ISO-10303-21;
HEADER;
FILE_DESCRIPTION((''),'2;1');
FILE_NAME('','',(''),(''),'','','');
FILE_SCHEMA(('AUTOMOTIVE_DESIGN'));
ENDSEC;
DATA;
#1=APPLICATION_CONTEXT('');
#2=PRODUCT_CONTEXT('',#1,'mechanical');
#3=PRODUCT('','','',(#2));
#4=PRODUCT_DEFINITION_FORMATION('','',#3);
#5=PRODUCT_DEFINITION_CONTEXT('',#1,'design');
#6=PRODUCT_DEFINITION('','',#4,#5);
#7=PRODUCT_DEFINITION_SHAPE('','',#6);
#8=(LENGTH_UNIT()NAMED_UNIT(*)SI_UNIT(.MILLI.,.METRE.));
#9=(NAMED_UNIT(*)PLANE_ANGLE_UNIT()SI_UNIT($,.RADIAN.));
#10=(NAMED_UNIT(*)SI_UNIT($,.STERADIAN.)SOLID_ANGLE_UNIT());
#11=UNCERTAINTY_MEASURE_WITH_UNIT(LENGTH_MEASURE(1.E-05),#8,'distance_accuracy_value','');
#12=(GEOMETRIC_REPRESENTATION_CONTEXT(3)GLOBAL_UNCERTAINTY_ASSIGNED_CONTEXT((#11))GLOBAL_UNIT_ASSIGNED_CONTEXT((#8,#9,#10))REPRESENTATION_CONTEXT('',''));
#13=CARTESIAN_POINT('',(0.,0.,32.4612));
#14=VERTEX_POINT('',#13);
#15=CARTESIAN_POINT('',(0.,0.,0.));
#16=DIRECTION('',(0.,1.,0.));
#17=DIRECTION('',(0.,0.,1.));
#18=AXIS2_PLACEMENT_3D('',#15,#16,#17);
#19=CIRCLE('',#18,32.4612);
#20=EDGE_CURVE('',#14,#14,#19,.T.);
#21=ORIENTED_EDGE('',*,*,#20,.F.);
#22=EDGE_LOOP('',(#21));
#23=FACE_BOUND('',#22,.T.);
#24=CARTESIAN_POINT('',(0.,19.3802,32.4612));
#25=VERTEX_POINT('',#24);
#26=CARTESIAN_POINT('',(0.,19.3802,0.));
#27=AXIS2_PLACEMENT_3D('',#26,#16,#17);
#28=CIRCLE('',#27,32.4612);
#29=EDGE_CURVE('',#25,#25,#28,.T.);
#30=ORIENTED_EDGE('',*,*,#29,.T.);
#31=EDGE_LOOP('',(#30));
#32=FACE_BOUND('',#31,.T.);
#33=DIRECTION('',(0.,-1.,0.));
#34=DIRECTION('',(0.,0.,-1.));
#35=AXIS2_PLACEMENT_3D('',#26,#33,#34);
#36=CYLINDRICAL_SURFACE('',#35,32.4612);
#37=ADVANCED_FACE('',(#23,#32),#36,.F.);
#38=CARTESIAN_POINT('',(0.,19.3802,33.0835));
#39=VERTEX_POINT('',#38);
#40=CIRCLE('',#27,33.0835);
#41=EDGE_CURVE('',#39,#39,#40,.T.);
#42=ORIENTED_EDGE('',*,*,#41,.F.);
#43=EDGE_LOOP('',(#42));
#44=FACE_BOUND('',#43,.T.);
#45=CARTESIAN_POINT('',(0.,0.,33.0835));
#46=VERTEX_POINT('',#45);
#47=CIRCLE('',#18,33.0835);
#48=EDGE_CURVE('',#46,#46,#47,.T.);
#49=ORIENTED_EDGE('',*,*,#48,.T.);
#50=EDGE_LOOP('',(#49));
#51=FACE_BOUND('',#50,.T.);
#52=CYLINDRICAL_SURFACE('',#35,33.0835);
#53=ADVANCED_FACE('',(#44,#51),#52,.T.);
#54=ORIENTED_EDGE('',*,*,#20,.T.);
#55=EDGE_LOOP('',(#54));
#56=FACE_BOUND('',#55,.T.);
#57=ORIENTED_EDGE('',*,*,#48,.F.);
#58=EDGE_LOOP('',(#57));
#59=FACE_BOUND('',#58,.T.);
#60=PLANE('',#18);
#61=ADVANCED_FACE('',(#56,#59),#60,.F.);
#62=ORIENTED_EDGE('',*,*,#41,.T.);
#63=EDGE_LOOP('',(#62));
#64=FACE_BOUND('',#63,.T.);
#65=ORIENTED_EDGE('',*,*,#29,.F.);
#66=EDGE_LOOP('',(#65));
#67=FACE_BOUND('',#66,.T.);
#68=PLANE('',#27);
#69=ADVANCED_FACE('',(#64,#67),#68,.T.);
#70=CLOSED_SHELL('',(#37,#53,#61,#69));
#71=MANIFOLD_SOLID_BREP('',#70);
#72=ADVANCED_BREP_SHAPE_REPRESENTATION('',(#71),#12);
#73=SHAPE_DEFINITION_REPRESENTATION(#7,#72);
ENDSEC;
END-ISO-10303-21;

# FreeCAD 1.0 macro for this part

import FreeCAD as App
import Part
import Sketcher
from FreeCAD import Vector
Q = App.Units.Quantity

doc = App.newDocument("Part")
body = doc.addObject("PartDesign::Body", "Body")

sketch1 = body.newObject("Sketcher::SketchObject", "Sketch")
sketch1.AttachmentSupport = (doc.getObject("XZ_Plane"), [""])
sketch1.MapMode = "FlatFace"
sketch1.addGeometry([
    Part.Circle(Vector(0, 0, 0), Vector(0, 0, 1), 33.0835),
    Part.Circle(Vector(0, 0, 0), Vector(0, 0, 1), 32.4612),
], False)
sketch1.addConstraint([
    Sketcher.Constraint("Coincident", 0, 3, -1, 1),
    Sketcher.Constraint("Coincident", 1, 3, -1, 1),
    Sketcher.Constraint("Diameter", 0, Q("2.605 in")),
    Sketcher.Constraint("Diameter", 1, Q("2.556 in")),
])
pad1 = body.newObject("PartDesign::Pad", "Pad")
pad1.Profile = sketch1
pad1.Length = Q("0.763 in")
pad1.Reversed = True

doc.recompute()
